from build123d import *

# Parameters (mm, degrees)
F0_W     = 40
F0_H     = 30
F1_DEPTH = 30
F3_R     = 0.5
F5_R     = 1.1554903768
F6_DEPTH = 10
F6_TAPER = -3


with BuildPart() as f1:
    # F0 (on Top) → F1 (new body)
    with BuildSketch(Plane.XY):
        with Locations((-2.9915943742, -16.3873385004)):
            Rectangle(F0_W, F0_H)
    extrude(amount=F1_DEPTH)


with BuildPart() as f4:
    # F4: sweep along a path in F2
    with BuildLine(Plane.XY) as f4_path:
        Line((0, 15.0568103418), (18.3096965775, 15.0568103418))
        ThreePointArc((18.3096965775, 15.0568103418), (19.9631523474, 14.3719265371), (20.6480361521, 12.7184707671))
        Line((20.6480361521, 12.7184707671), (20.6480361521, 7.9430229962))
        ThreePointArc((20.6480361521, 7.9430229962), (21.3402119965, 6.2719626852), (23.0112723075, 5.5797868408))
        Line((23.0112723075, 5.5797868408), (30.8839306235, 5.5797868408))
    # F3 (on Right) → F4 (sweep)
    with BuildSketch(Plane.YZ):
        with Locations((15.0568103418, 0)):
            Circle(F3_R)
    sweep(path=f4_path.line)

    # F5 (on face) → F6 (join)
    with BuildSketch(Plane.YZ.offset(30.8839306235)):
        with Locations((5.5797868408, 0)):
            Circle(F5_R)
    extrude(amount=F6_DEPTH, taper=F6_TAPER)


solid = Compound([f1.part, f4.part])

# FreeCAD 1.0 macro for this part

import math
import FreeCAD as App
import Part
import Sketcher
Q = App.Units.Quantity


def add_polygon(sketch, points):
    """Adds a closed chain of lines whose ends are joined by coincident constraints."""
    first, n = sketch.GeometryCount, len(points)
    for a, b in zip(points, points[1:] + points[:1]):
        sketch.addGeometry(Part.LineSegment(App.Vector(*a, 0), App.Vector(*b, 0)), False)
    for i in range(n):
        sketch.addConstraint(Sketcher.Constraint("Coincident", first + i, 2, first + (i + 1) % n, 1))

doc = App.newDocument("Part")
params = doc.addObject("Spreadsheet::Sheet", "Params")
for row, (alias, value) in enumerate([
    ("sketch1_width", "40 mm"),
    ("sketch1_height", "30 mm"),
    ("pad1_length", "30 mm"),
    ("sketch2_diameter", "1 mm"),
    ("pad2_length", "10 mm"),
    ("pad2_taper", "3 deg"),
], start=1):
    params.set(f"A{row}", alias)
    params.set(f"B{row}", "=" + value)
    params.setAlias(f"B{row}", alias)

body = doc.addObject("PartDesign::Body", "Body")

# Sketch on XY plane
sketch1 = body.newObject("Sketcher::SketchObject", "Sketch")
sketch1.AttachmentSupport = (doc.getObject("XY_Plane"), [""])
sketch1.MapMode = "FlatFace"
add_polygon(sketch1, [(-23, -1), (-23, -31), (17, -31), (17, -1)])  # lines 0-3
sketch1.addConstraint(Sketcher.Constraint("Vertical", 0))
sketch1.addConstraint(Sketcher.Constraint("Horizontal", 1))
sketch1.addConstraint(Sketcher.Constraint("Vertical", 2))
sketch1.addConstraint(Sketcher.Constraint("Horizontal", 3))
sketch1.addConstraint(Sketcher.Constraint("DistanceX", 1, 1, 1, 2, Q("40 mm")))
sketch1.addConstraint(Sketcher.Constraint("DistanceY", 0, 2, 0, 1, Q("30 mm")))
sketch1.addConstraint(Sketcher.Constraint("DistanceY", 0, 2, -1, 1, Q("31.387338 mm")))
sketch1.addConstraint(Sketcher.Constraint("DistanceX", 0, 2, -1, 1, Q("22.991594 mm")))
sketch1.setExpression("Constraints[8]", "Params.sketch1_width")
sketch1.setExpression("Constraints[9]", "Params.sketch1_height")
pad1 = body.newObject("PartDesign::Pad", "Pad")
pad1.Profile = sketch1
pad1.setExpression("Length", "Params.pad1_length")
body2 = doc.addObject("PartDesign::Body", "Body001")

# Sketch on YZ plane
sketch2 = body2.newObject("Sketcher::SketchObject", "Sketch001")
sketch2.AttachmentSupport = (doc.getObject("YZ_Plane001"), [""])
sketch2.MapMode = "FlatFace"
sketch2.addGeometry(Part.Circle(App.Vector(15.1, 0, 0), App.Vector(0, 0, 1), 0.5), False)
sketch2.addConstraint(Sketcher.Constraint("PointOnObject", 0, 3, -1))
sketch2.addConstraint(Sketcher.Constraint("Diameter", 0, Q("1 mm")))
sketch2.addConstraint(Sketcher.Constraint("DistanceX", -1, 1, 0, 3, Q("15.05681 mm")))
sketch2.setExpression("Constraints[1]", "Params.sketch2_diameter")

# Sketch on XY plane
sketch3 = body2.newObject("Sketcher::SketchObject", "Sketch002")
sketch3.AttachmentSupport = (doc.getObject("XY_Plane001"), [""])
sketch3.MapMode = "FlatFace"
sketch3.addGeometry(Part.LineSegment(App.Vector(0, 15.1, 0), App.Vector(18.3, 15.1, 0)), False)
sketch3.addGeometry(Part.ArcOfCircle(Part.Circle(App.Vector(18.3, 12.7, 0), App.Vector(0, 0, 1), 2.3), math.radians(0), math.radians(90)), False)
sketch3.addGeometry(Part.LineSegment(App.Vector(20.6, 12.7, 0), App.Vector(20.6, 7.9, 0)), False)
sketch3.addGeometry(Part.ArcOfCircle(Part.Circle(App.Vector(23, 7.9, 0), App.Vector(0, 0, 1), 2.4), math.radians(180), math.radians(270)), False)
sketch3.addGeometry(Part.LineSegment(App.Vector(23, 5.6, 0), App.Vector(30.9, 5.6, 0)), False)
sketch3.addConstraint(Sketcher.Constraint("Tangent", 0, 2, 1, 2))
sketch3.addConstraint(Sketcher.Constraint("Tangent", 1, 1, 2, 1))
sketch3.addConstraint(Sketcher.Constraint("Tangent", 2, 2, 3, 1))
sketch3.addConstraint(Sketcher.Constraint("Tangent", 3, 2, 4, 1))
sketch3.addConstraint(Sketcher.Constraint("Horizontal", 0))
sketch3.addConstraint(Sketcher.Constraint("Vertical", 2))
sketch3.addConstraint(Sketcher.Constraint("Horizontal", 4))
sketch3.addConstraint(Sketcher.Constraint("PointOnObject", 0, 1, -2))
sketch3.addConstraint(Sketcher.Constraint("Radius", 1, Q("2.33834 mm")))
sketch3.addConstraint(Sketcher.Constraint("Radius", 3, Q("2.363236 mm")))
sketch3.addConstraint(Sketcher.Constraint("DistanceX", 4, 1, 4, 2, Q("7.872658 mm")))
sketch3.addConstraint(Sketcher.Constraint("DistanceX", 0, 1, 0, 2, Q("18.309697 mm")))
sketch3.addConstraint(Sketcher.Constraint("DistanceY", 2, 2, 2, 1, Q("4.775448 mm")))
sketch3.addConstraint(Sketcher.Constraint("DistanceY", -1, 1, 1, 3, Q("12.718471 mm")))
doc.recompute()

additivepipe = body2.newObject("PartDesign::AdditivePipe", "AdditivePipe")
additivepipe.Profile = sketch2
additivepipe.Spine = (sketch3, ["Edge1", "Edge2", "Edge3", "Edge4", "Edge5"])

# Sketch on YZ plane
sketch4 = body2.newObject("Sketcher::SketchObject", "Sketch003")
sketch4.AttachmentSupport = (doc.getObject("YZ_Plane001"), [""])
sketch4.MapMode = "FlatFace"
sketch4.AttachmentOffset = App.Placement(App.Vector(0, 0, 30.883931), App.Rotation())
sketch4.addGeometry(Part.Circle(App.Vector(5.6, 0, 0), App.Vector(0, 0, 1), 1.2), False)
sketch4.addConstraint(Sketcher.Constraint("PointOnObject", 0, 3, -1))
sketch4.addConstraint(Sketcher.Constraint("Diameter", 0, Q("2.310981 mm")))
sketch4.addConstraint(Sketcher.Constraint("DistanceX", -1, 1, 0, 3, Q("5.579787 mm")))
pad2 = body2.newObject("PartDesign::Pad", "Pad001")
pad2.Profile = sketch4
pad2.setExpression("Length", "Params.pad2_length")
pad2.setExpression("TaperAngle", "Params.pad2_taper")

doc.recompute()
